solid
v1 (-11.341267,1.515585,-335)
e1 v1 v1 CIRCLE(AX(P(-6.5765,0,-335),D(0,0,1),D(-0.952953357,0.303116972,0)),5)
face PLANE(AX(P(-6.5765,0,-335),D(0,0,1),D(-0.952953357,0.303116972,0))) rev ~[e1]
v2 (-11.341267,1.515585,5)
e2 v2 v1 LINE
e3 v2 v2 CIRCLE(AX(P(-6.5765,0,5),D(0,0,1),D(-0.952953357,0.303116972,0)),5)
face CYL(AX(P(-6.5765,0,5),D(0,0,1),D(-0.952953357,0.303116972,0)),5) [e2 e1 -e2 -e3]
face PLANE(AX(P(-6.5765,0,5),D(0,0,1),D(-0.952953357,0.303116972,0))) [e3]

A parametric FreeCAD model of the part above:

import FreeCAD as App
import Part
import Sketcher
from FreeCAD import Vector
Q = App.Units.Quantity

doc = App.newDocument("Part")
body = doc.addObject("PartDesign::Body", "Body")

sketch1 = body.newObject("Sketcher::SketchObject", "Sketch")
sketch1.AttachmentSupport = (doc.getObject("XY_Plane"), [""])
sketch1.MapMode = "FlatFace"
sketch1.AttachmentOffset = App.Placement(Vector(0, 0, 5), App.Rotation())
sketch1.addGeometry(Part.Circle(Vector(-6.5765, 0, 0), Vector(0, 0, 1), 5), False)
sketch1.addConstraint(Sketcher.Constraint("PointOnObject", 0, 3, -1))
sketch1.addConstraint(Sketcher.Constraint("Diameter", 0, Q("10 mm")))
sketch1.addConstraint(Sketcher.Constraint("DistanceX", 0, 3, -1, 1, Q("6.5765 mm")))
pad1 = body.newObject("PartDesign::Pad", "Pad")
pad1.Profile = sketch1
pad1.Length = 340
pad1.Reversed = True

doc.recompute()
